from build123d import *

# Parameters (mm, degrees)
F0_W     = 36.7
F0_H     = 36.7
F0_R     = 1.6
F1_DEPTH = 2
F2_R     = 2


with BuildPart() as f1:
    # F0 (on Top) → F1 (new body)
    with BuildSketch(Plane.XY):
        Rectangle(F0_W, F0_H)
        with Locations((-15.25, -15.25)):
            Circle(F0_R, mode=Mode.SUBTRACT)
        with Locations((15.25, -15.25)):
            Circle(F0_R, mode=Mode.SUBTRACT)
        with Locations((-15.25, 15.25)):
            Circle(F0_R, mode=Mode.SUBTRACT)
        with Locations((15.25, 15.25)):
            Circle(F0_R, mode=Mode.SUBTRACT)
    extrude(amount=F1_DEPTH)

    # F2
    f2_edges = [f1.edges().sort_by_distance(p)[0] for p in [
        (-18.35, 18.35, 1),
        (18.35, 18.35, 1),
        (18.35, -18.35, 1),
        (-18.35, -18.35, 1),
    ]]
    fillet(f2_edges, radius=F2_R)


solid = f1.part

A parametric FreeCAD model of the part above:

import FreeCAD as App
import Part
import Sketcher

V = App.Vector
Q = App.Units.Quantity


def edges_at(feature, points):
    """Names of the edges that pass closest to the given points."""
    edges = feature.Shape.Edges
    near = lambda p: min(range(len(edges)), key=lambda i: edges[i].distToShape(Part.Vertex(*p))[0])
    return sorted({f"Edge{near(p) + 1}" for p in points})

doc = App.newDocument("Part")
body = doc.addObject("PartDesign::Body", "Body")

# Sketch on XY plane
sketch1 = doc.addObject("Sketcher::SketchObject", "Sketch")
body.addObject(sketch1)
sketch1.AttachmentSupport = (doc.XY_Plane, [""])
sketch1.MapMode = "FlatFace"
sketch1.addGeometry([
    Part.LineSegment(V(-18.4, 18.4, 0), V(-18.4, -18.4, 0)),  # 0
    Part.LineSegment(V(-18.4, -18.4, 0), V(18.4, -18.4, 0)),  # 1
    Part.LineSegment(V(18.4, -18.4, 0), V(18.4, 18.4, 0)),  # 2
    Part.LineSegment(V(18.4, 18.4, 0), V(-18.4, 18.4, 0)),  # 3
    Part.Circle(V(-15.2, -15.2, 0), V(0, 0, 1), 1.6),  # 4
    Part.Circle(V(15.2, -15.2, 0), V(0, 0, 1), 1.6),  # 5
    Part.Circle(V(-15.2, 15.2, 0), V(0, 0, 1), 1.6),  # 6
    Part.Circle(V(15.2, 15.2, 0), V(0, 0, 1), 1.6),  # 7
], False)
sketch1.addConstraint([
    Sketcher.Constraint("Coincident", 0, 2, 1, 1),
    Sketcher.Constraint("Coincident", 1, 2, 2, 1),
    Sketcher.Constraint("Coincident", 2, 2, 3, 1),
    Sketcher.Constraint("Coincident", 3, 2, 0, 1),
    Sketcher.Constraint("Vertical", 0),
    Sketcher.Constraint("Horizontal", 1),
    Sketcher.Constraint("Vertical", 2),
    Sketcher.Constraint("Horizontal", 3),
    Sketcher.Constraint("Equal", 4, 5),
    Sketcher.Constraint("Equal", 5, 6),
    Sketcher.Constraint("Equal", 6, 7),
    Sketcher.Constraint("Symmetric", 5, 3, 6, 3, -1, 1),
    Sketcher.Constraint("Symmetric", 4, 3, 7, 3, -1, 1),
    Sketcher.Constraint("Symmetric", 0, 2, 2, 2, -1, 1),
    Sketcher.Constraint("Symmetric", 4, 3, 5, 3, -2),
    Sketcher.Constraint("Equal", 3, 0),
    Sketcher.Constraint("Diameter", 4, Q("3.2 mm")),
    Sketcher.Constraint("DistanceX", 1, 1, 1, 2, Q("36.7 mm")),
    Sketcher.Constraint("DistanceX", 4, 3, 5, 3, Q("30.5 mm")),
    Sketcher.Constraint("DistanceY", 4, 3, 6, 3, Q("30.5 mm")),
])
pad1 = doc.addObject("PartDesign::Pad", "Pad")
body.addObject(pad1)
pad1.Profile = sketch1
pad1.Length = 2
doc.recompute()

fillet = doc.addObject("PartDesign::Fillet", "Fillet")
body.addObject(fillet)
fillet.Base = (pad1, edges_at(pad1, [
    (-18.35, 18.35, 1),
    (18.35, 18.35, 1),
    (18.35, -18.35, 1),
    (-18.35, -18.35, 1),
]))
fillet.Radius = 2

doc.recompute()
